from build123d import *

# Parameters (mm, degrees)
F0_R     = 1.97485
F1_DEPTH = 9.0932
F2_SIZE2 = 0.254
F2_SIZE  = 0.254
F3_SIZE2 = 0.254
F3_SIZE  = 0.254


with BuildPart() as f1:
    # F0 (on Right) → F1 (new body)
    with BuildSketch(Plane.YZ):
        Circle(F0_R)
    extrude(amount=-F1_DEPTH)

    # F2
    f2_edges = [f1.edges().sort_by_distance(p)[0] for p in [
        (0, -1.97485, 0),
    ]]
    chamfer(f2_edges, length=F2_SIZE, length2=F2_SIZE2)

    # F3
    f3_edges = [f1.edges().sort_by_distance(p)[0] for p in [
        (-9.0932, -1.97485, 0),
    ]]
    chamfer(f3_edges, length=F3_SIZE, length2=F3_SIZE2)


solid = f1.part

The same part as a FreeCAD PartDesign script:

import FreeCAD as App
import Part
import Sketcher

V = App.Vector
Q = App.Units.Quantity


def edges_at(feature, points):
    """Names of the edges that pass closest to the given points."""
    edges = feature.Shape.Edges
    near = lambda p: min(range(len(edges)), key=lambda i: edges[i].distToShape(Part.Vertex(*p))[0])
    return sorted({f"Edge{near(p) + 1}" for p in points})

doc = App.newDocument("Part")
body = doc.addObject("PartDesign::Body", "Body")

# Sketch on YZ plane
sketch1 = body.newObject("Sketcher::SketchObject", "Sketch")
sketch1.AttachmentSupport = (doc.getObject("YZ_Plane"), [""])
sketch1.MapMode = "FlatFace"
sketch1.addGeometry(Part.Circle(V(0, 0, 0), V(0, 0, 1), 2), False)
sketch1.addConstraint(Sketcher.Constraint("Coincident", 0, 3, -1, 1))
sketch1.addConstraint(Sketcher.Constraint("Diameter", 0, Q("0.1555 in")))
pad1 = body.newObject("PartDesign::Pad", "Pad")
pad1.Profile = sketch1
pad1.Length = Q("0.358 in")
pad1.Reversed = True
doc.recompute()

chamfer = body.newObject("PartDesign::Chamfer", "Chamfer")
chamfer.Base = (pad1, edges_at(pad1, [(0, -1.975, 0)]))
chamfer.ChamferType = "Two distances"
chamfer.Size = Q("0.01 in")
chamfer.Size2 = Q("0.01 in")
doc.recompute()

chamfer2 = body.newObject("PartDesign::Chamfer", "Chamfer001")
chamfer2.Base = (chamfer, edges_at(chamfer, [(-9.093, -1.975, 0)]))
chamfer2.ChamferType = "Two distances"
chamfer2.Size = Q("0.01 in")
chamfer2.Size2 = Q("0.01 in")

doc.recompute()
